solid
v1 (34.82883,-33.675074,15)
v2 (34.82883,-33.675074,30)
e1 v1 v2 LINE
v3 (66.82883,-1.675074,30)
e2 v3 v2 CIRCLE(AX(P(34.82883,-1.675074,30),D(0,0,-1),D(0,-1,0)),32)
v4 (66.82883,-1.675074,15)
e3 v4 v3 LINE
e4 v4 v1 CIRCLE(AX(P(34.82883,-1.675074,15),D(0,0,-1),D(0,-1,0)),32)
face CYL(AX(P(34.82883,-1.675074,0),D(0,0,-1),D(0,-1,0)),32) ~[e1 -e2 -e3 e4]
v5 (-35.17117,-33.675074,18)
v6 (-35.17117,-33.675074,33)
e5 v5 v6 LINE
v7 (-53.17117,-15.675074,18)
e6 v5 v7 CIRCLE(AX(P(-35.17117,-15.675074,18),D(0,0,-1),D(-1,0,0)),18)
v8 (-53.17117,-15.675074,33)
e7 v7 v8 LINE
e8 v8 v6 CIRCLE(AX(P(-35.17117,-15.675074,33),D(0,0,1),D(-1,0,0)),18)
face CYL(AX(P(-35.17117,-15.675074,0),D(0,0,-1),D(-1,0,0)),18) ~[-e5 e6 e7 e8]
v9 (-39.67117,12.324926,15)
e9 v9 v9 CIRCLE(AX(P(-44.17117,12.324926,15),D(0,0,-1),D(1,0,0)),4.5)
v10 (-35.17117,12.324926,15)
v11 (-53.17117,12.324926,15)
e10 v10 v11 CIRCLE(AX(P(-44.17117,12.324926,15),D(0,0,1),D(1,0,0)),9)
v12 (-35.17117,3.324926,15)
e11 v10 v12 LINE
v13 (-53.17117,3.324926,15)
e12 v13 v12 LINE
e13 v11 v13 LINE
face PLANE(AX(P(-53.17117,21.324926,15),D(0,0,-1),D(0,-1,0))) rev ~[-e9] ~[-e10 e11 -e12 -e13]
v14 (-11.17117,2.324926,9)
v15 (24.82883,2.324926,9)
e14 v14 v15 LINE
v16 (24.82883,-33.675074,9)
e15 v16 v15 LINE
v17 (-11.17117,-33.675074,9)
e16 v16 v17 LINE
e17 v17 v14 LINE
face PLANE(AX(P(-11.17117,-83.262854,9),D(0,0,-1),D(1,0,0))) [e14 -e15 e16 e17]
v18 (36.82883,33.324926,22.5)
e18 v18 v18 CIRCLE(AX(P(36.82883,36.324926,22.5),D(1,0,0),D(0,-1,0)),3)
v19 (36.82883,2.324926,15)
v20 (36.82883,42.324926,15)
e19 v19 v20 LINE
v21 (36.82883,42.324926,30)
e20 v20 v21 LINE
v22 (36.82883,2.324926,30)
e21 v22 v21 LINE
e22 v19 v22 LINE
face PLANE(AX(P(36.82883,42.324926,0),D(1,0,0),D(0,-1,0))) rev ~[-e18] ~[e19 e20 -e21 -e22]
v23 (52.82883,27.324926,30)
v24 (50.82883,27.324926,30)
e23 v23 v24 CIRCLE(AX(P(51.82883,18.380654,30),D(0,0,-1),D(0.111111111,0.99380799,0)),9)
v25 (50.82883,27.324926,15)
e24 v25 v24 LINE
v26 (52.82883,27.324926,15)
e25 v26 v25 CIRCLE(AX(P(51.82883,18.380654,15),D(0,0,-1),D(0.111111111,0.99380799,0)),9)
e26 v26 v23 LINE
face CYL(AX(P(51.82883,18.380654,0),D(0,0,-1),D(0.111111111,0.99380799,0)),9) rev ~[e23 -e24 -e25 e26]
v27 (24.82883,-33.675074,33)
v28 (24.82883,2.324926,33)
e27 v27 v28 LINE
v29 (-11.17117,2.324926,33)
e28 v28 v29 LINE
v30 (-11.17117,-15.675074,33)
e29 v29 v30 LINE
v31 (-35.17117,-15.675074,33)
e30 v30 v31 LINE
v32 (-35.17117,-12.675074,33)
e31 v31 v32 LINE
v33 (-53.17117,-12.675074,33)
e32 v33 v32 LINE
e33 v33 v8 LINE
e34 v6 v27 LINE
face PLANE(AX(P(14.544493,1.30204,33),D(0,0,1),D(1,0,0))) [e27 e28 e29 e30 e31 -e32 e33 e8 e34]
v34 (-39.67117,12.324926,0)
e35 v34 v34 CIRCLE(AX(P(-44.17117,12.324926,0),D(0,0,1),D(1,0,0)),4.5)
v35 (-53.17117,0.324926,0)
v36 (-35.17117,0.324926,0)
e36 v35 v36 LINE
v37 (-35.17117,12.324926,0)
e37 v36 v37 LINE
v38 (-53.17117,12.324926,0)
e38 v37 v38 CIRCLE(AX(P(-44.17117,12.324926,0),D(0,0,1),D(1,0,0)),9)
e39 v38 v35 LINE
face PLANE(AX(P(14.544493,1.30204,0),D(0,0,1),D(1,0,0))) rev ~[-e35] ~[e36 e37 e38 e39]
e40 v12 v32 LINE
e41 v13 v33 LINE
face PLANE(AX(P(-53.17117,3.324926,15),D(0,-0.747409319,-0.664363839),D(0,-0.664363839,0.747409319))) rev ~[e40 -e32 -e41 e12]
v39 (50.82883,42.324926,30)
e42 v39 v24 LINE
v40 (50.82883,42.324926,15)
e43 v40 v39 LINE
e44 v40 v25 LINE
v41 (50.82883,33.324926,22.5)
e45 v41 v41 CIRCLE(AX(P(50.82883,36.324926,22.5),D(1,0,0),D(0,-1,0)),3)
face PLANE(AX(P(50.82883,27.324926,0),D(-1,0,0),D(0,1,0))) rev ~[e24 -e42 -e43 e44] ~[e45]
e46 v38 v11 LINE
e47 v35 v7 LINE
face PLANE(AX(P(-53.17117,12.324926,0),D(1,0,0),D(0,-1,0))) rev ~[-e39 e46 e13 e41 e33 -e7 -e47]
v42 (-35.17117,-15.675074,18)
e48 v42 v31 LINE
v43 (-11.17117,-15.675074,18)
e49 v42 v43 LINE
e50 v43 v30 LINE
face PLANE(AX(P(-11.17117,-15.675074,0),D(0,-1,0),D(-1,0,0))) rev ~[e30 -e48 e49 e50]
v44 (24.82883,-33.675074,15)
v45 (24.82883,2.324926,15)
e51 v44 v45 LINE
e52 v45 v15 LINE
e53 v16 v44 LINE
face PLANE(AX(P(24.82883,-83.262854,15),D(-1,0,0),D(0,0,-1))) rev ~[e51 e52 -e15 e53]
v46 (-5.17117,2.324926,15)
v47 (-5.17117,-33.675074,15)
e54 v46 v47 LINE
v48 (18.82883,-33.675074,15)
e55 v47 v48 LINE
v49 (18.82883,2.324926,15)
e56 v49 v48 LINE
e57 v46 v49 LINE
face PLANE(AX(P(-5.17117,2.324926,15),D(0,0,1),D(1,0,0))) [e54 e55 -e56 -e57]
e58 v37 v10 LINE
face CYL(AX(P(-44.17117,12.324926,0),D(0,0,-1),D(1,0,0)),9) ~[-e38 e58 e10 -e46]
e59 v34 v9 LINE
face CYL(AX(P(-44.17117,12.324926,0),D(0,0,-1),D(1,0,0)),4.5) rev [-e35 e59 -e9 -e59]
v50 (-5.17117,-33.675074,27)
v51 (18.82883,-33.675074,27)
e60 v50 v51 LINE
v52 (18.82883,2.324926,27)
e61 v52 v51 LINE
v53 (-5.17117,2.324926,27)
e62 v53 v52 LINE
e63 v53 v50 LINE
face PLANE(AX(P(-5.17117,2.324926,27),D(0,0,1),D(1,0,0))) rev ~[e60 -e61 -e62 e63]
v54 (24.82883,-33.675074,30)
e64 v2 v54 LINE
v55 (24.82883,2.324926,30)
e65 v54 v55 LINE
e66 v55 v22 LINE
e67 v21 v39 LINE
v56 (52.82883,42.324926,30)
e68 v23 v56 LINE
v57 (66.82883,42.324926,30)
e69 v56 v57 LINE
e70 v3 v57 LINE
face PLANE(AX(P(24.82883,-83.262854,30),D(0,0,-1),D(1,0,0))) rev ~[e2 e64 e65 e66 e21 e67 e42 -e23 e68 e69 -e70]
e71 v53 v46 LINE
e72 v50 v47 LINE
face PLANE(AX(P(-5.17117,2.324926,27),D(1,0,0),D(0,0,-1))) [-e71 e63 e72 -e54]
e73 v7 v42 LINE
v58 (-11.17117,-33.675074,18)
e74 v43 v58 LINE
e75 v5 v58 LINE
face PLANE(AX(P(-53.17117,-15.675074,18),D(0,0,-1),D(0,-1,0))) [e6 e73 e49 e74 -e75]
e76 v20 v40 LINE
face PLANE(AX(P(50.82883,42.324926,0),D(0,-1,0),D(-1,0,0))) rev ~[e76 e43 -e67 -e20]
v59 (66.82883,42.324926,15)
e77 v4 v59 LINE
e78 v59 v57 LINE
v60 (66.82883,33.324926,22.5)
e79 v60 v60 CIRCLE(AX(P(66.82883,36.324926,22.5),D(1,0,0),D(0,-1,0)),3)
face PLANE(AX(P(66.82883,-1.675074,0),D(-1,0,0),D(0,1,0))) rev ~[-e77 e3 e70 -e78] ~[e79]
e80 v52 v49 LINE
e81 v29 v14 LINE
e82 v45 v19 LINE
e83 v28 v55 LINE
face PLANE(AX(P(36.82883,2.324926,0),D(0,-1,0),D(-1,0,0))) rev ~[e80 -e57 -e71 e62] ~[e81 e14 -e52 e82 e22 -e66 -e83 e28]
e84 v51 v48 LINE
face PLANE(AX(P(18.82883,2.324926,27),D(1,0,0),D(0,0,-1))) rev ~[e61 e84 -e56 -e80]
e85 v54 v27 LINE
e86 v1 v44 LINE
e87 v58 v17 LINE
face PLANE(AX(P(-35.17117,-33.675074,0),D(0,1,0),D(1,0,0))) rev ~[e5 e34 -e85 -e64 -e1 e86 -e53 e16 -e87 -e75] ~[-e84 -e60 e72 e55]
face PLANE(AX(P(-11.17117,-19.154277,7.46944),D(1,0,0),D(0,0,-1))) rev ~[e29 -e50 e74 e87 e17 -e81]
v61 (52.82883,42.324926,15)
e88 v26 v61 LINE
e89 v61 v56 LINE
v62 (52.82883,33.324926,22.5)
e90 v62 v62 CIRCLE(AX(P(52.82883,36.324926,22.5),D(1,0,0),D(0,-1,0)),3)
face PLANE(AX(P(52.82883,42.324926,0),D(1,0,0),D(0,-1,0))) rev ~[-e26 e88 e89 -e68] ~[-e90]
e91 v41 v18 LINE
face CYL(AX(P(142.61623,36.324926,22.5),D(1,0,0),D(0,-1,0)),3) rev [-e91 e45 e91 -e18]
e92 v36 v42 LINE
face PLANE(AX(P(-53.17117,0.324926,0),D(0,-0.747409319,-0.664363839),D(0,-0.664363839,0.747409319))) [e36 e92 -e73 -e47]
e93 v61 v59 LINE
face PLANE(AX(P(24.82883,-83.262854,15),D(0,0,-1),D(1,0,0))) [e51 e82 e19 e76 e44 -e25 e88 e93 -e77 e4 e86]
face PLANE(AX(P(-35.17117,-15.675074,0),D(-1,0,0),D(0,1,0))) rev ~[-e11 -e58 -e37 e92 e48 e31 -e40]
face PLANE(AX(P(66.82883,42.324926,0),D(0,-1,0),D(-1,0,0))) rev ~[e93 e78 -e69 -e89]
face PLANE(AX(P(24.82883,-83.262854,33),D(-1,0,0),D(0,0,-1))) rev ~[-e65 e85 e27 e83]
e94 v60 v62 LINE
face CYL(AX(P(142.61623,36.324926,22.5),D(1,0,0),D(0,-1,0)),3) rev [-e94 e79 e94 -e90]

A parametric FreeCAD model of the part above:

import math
import FreeCAD as App
import Part
import Sketcher
Q = App.Units.Quantity

doc = App.newDocument("Part")
body = doc.addObject("PartDesign::Body", "Body")

sketch1 = doc.addObject("Sketcher::SketchObject", "Sketch")
body.addObject(sketch1)
sketch1.AttachmentSupport = (doc.XY_Plane, [""])
sketch1.MapMode = "FlatFace"
sketch1.addGeometry([
    Part.LineSegment(App.Vector(52.8, 42.3, 0), App.Vector(52.8, 27.3, 0)),
    Part.ArcOfCircle(Part.Circle(App.Vector(51.8, 18.4, 0), App.Vector(0, 0, 1), 9), math.radians(96), math.radians(444)),
    Part.LineSegment(App.Vector(50.8, 27.3, 0), App.Vector(50.8, 42.3, 0)),
    Part.LineSegment(App.Vector(50.8, 42.3, 0), App.Vector(36.8, 42.3, 0)),
    Part.LineSegment(App.Vector(36.8, 42.3, 0), App.Vector(36.8, 2.3, 0)),
    Part.LineSegment(App.Vector(36.8, 2.3, 0), App.Vector(-11.2, 2.3, 0)),
    Part.LineSegment(App.Vector(-11.2, 2.3, 0), App.Vector(-11.2, -15.7, 0)),
    Part.LineSegment(App.Vector(-11.2, -15.7, 0), App.Vector(-35.2, -15.7, 0)),
    Part.LineSegment(App.Vector(-35.2, -15.7, 0), App.Vector(-35.2, 12.3, 0)),
    Part.ArcOfCircle(Part.Circle(App.Vector(-44.2, 12.3, 0), App.Vector(0, 0, 1), 9), math.radians(0), math.radians(180)),
    Part.LineSegment(App.Vector(-53.2, 12.3, 0), App.Vector(-53.2, -15.7, 0)),
    Part.ArcOfCircle(Part.Circle(App.Vector(-35.2, -15.7, 0), App.Vector(0, 0, 1), 18), math.radians(-180), math.radians(-90)),
    Part.LineSegment(App.Vector(-35.2, -33.7, 0), App.Vector(34.8, -33.7, 0)),
    Part.ArcOfCircle(Part.Circle(App.Vector(34.8, -1.7, 0), App.Vector(0, 0, 1), 32), math.radians(-90), math.radians(0)),
    Part.LineSegment(App.Vector(66.8, -1.7, 0), App.Vector(66.8, 42.3, 0)),
    Part.LineSegment(App.Vector(66.8, 42.3, 0), App.Vector(52.8, 42.3, 0)),
    Part.Circle(App.Vector(-44.2, 12.3, 0), App.Vector(0, 0, 1), 4.5),
], False)
sketch1.addConstraint([
    Sketcher.Constraint("Coincident", 0, 2, 1, 2),
    Sketcher.Constraint("Coincident", 1, 1, 2, 1),
    Sketcher.Constraint("Coincident", 2, 2, 3, 1),
    Sketcher.Constraint("Coincident", 3, 2, 4, 1),
    Sketcher.Constraint("Coincident", 4, 2, 5, 1),
    Sketcher.Constraint("Coincident", 5, 2, 6, 1),
    Sketcher.Constraint("Coincident", 6, 2, 7, 1),
    Sketcher.Constraint("Coincident", 7, 2, 8, 1),
    Sketcher.Constraint("Tangent", 8, 2, 9, 1),
    Sketcher.Constraint("Tangent", 9, 2, 10, 1),
    Sketcher.Constraint("Tangent", 10, 2, 11, 1),
    Sketcher.Constraint("Tangent", 11, 2, 12, 1),
    Sketcher.Constraint("Tangent", 12, 2, 13, 1),
    Sketcher.Constraint("Tangent", 13, 2, 14, 1),
    Sketcher.Constraint("Coincident", 14, 2, 15, 1),
    Sketcher.Constraint("Coincident", 15, 2, 0, 1),
    Sketcher.Constraint("Vertical", 0),
    Sketcher.Constraint("Vertical", 2),
    Sketcher.Constraint("Horizontal", 3),
    Sketcher.Constraint("Vertical", 4),
    Sketcher.Constraint("Horizontal", 5),
    Sketcher.Constraint("Vertical", 6),
    Sketcher.Constraint("Horizontal", 7),
    Sketcher.Constraint("Vertical", 8),
    Sketcher.Constraint("Vertical", 10),
    Sketcher.Constraint("Horizontal", 12),
    Sketcher.Constraint("Vertical", 14),
    Sketcher.Constraint("Horizontal", 15),
    Sketcher.Constraint("Coincident", 16, 3, 9, 3),
    Sketcher.Constraint("Coincident", 7, 2, 11, 3),
    Sketcher.Constraint("Equal", 1, 9),
    Sketcher.Constraint("Horizontal", 0, 2, 1, 1),
    Sketcher.Constraint("Horizontal", 3, 2, 14, 2),
    Sketcher.Constraint("Equal", 3, 15),
    Sketcher.Constraint("Diameter", 16, Q("9 mm")),
    Sketcher.Constraint("Radius", 1, Q("9 mm")),
    Sketcher.Constraint("Radius", 13, Q("32 mm")),
    Sketcher.Constraint("DistanceX", 3, 2, 3, 1, Q("14 mm")),
    Sketcher.Constraint("DistanceX", 5, 2, 5, 1, Q("48 mm")),
    Sketcher.Constraint("DistanceX", 7, 2, 7, 1, Q("24 mm")),
    Sketcher.Constraint("DistanceX", 12, 1, 12, 2, Q("70 mm")),
    Sketcher.Constraint("DistanceY", 0, 2, 0, 1, Q("15 mm")),
    Sketcher.Constraint("DistanceY", 4, 2, 4, 1, Q("40 mm")),
    Sketcher.Constraint("DistanceY", 6, 2, 6, 1, Q("18 mm")),
    Sketcher.Constraint("DistanceY", 8, 1, 8, 2, Q("28 mm")),
    Sketcher.Constraint("DistanceX", -1, 1, 1, 3, Q("51.82883 mm")),
    Sketcher.Constraint("DistanceY", -1, 1, 1, 3, Q("18.380654 mm")),
])
pad1 = doc.addObject("PartDesign::Pad", "Pad")
body.addObject(pad1)
pad1.Profile = sketch1
pad1.Length = 33

sketch2 = doc.addObject("Sketcher::SketchObject", "Sketch001")
body.addObject(sketch2)
sketch2.AttachmentSupport = (doc.YZ_Plane, [""])
sketch2.MapMode = "FlatFace"
sketch2.AttachmentOffset = App.Placement(App.Vector(0, 0, -53.17117), App.Rotation())
sketch2.addGeometry([
    Part.LineSegment(App.Vector(-16, 18, 0), App.Vector(0, 0, 0)),
    Part.LineSegment(App.Vector(0, 0, 0), App.Vector(-34, 0, 0)),
    Part.LineSegment(App.Vector(-34, 0, 0), App.Vector(-34, 18, 0)),
    Part.LineSegment(App.Vector(-34, 18, 0), App.Vector(-16, 18, 0)),
    Part.LineSegment(App.Vector(21, 15, 0), App.Vector(3, 15, 0)),
    Part.LineSegment(App.Vector(3, 15, 0), App.Vector(-13, 33, 0)),
    Part.LineSegment(App.Vector(-13, 33, 0), App.Vector(21, 33, 0)),
    Part.LineSegment(App.Vector(21, 33, 0), App.Vector(21, 15, 0)),
], False)
sketch2.addConstraint([
    Sketcher.Constraint("Coincident", 0, 2, 1, 1),
    Sketcher.Constraint("Coincident", 1, 2, 2, 1),
    Sketcher.Constraint("Coincident", 2, 2, 3, 1),
    Sketcher.Constraint("Coincident", 3, 2, 0, 1),
    Sketcher.Constraint("Coincident", 4, 2, 5, 1),
    Sketcher.Constraint("Coincident", 5, 2, 6, 1),
    Sketcher.Constraint("Coincident", 6, 2, 7, 1),
    Sketcher.Constraint("Coincident", 7, 2, 4, 1),
    Sketcher.Constraint("Horizontal", 1),
    Sketcher.Constraint("Vertical", 2),
    Sketcher.Constraint("Horizontal", 3),
    Sketcher.Constraint("Horizontal", 4),
    Sketcher.Constraint("Horizontal", 6),
    Sketcher.Constraint("Vertical", 7),
    Sketcher.Constraint("PointOnObject", 0, 2, -1),
    Sketcher.Constraint("Parallel", 0, 5),
    Sketcher.Constraint("Equal", 3, 4),
    Sketcher.Constraint("Equal", 1, 6),
    Sketcher.Constraint("Equal", 4, 2),
    Sketcher.Constraint("DistanceX", 1, 2, 1, 1, Q("34 mm")),
    Sketcher.Constraint("DistanceX", 3, 1, 3, 2, Q("18 mm")),
    Sketcher.Constraint("DistanceY", -1, 1, 4, 2, Q("15 mm")),
    Sketcher.Constraint("DistanceX", 0, 2, 4, 2, Q("3 mm")),
    Sketcher.Constraint("DistanceX", -1, 1, 0, 2, Q("0.324926 mm")),
])
pocket1 = doc.addObject("PartDesign::Pocket", "Pocket")
body.addObject(pocket1)
pocket1.Profile = sketch2
pocket1.Length = 42
pocket1.Reversed = True

sketch3 = doc.addObject("Sketcher::SketchObject", "Sketch002")
body.addObject(sketch3)
sketch3.AttachmentSupport = (doc.XZ_Plane, [""])
sketch3.MapMode = "FlatFace"
sketch3.AttachmentOffset = App.Placement(App.Vector(0, 0, -2.324926), App.Rotation())
sketch3.addGeometry([
    Part.LineSegment(App.Vector(-5, 15, 0), App.Vector(-5, 27, 0)),
    Part.LineSegment(App.Vector(-5, 27, 0), App.Vector(19, 27, 0)),
    Part.LineSegment(App.Vector(19, 27, 0), App.Vector(19, 15, 0)),
    Part.LineSegment(App.Vector(19, 15, 0), App.Vector(-5, 15, 0)),
], False)
sketch3.addConstraint([
    Sketcher.Constraint("Coincident", 0, 2, 1, 1),
    Sketcher.Constraint("Coincident", 1, 2, 2, 1),
    Sketcher.Constraint("Coincident", 2, 2, 3, 1),
    Sketcher.Constraint("Coincident", 3, 2, 0, 1),
    Sketcher.Constraint("Vertical", 0),
    Sketcher.Constraint("Horizontal", 1),
    Sketcher.Constraint("Vertical", 2),
    Sketcher.Constraint("Horizontal", 3),
    Sketcher.Constraint("DistanceX", 1, 1, 1, 2, Q("24 mm")),
    Sketcher.Constraint("DistanceY", 0, 1, 0, 2, Q("12 mm")),
    Sketcher.Constraint("DistanceY", -1, 1, 0, 2, Q("27 mm")),
    Sketcher.Constraint("DistanceX", 0, 2, -1, 1, Q("5.17117 mm")),
])
pocket2 = doc.addObject("PartDesign::Pocket", "Pocket001")
body.addObject(pocket2)
pocket2.Profile = sketch3
pocket2.Type = "ThroughAll"
pocket2.Reversed = True

sketch4 = doc.addObject("Sketcher::SketchObject", "Sketch003")
body.addObject(sketch4)
sketch4.AttachmentSupport = (doc.XZ_Plane, [""])
sketch4.MapMode = "FlatFace"
sketch4.AttachmentOffset = App.Placement(App.Vector(0, 0, -2.324926), App.Rotation())
sketch4.addGeometry([
    Part.LineSegment(App.Vector(-11, 0, 0), App.Vector(-11, 9, 0)),
    Part.LineSegment(App.Vector(-11, 9, 0), App.Vector(67, 9, 0)),
    Part.LineSegment(App.Vector(67, 9, 0), App.Vector(67, 0, 0)),
    Part.LineSegment(App.Vector(67, 0, 0), App.Vector(-11, 0, 0)),
], False)
sketch4.addConstraint([
    Sketcher.Constraint("Coincident", 0, 2, 1, 1),
    Sketcher.Constraint("Coincident", 1, 2, 2, 1),
    Sketcher.Constraint("Coincident", 2, 2, 3, 1),
    Sketcher.Constraint("Coincident", 3, 2, 0, 1),
    Sketcher.Constraint("Vertical", 0),
    Sketcher.Constraint("Horizontal", 1),
    Sketcher.Constraint("Vertical", 2),
    Sketcher.Constraint("Horizontal", 3),
    Sketcher.Constraint("PointOnObject", 2, 2, -1),
    Sketcher.Constraint("DistanceX", 1, 1, 1, 2, Q("78 mm")),
    Sketcher.Constraint("DistanceY", 0, 1, 0, 2, Q("9 mm")),
    Sketcher.Constraint("DistanceX", 0, 2, -1, 1, Q("11.17117 mm")),
])
pocket3 = doc.addObject("PartDesign::Pocket", "Pocket002")
body.addObject(pocket3)
pocket3.Profile = sketch4
pocket3.Type = "ThroughAll"
pocket3.Midplane = True

sketch5 = doc.addObject("Sketcher::SketchObject", "Sketch004")
body.addObject(sketch5)
sketch5.AttachmentSupport = (doc.XZ_Plane, [""])
sketch5.MapMode = "FlatFace"
sketch5.AttachmentOffset = App.Placement(App.Vector(0, 0, -2.324926), App.Rotation())
sketch5.addGeometry([
    Part.LineSegment(App.Vector(24.8, 9, 0), App.Vector(24.8, 15, 0)),
    Part.LineSegment(App.Vector(24.8, 15, 0), App.Vector(66.8, 15, 0)),
    Part.LineSegment(App.Vector(66.8, 15, 0), App.Vector(66.8, 9, 0)),
    Part.LineSegment(App.Vector(66.8, 9, 0), App.Vector(24.8, 9, 0)),
    Part.LineSegment(App.Vector(24.8, 30, 0), App.Vector(24.8, 33, 0)),
    Part.LineSegment(App.Vector(24.8, 33, 0), App.Vector(66.8, 33, 0)),
    Part.LineSegment(App.Vector(66.8, 33, 0), App.Vector(66.8, 30, 0)),
    Part.LineSegment(App.Vector(66.8, 30, 0), App.Vector(24.8, 30, 0)),
], False)
sketch5.addConstraint([
    Sketcher.Constraint("Coincident", 0, 2, 1, 1),
    Sketcher.Constraint("Coincident", 1, 2, 2, 1),
    Sketcher.Constraint("Coincident", 2, 2, 3, 1),
    Sketcher.Constraint("Coincident", 3, 2, 0, 1),
    Sketcher.Constraint("Coincident", 4, 2, 5, 1),
    Sketcher.Constraint("Coincident", 5, 2, 6, 1),
    Sketcher.Constraint("Coincident", 6, 2, 7, 1),
    Sketcher.Constraint("Coincident", 7, 2, 4, 1),
    Sketcher.Constraint("Vertical", 0),
    Sketcher.Constraint("Horizontal", 1),
    Sketcher.Constraint("Vertical", 2),
    Sketcher.Constraint("Horizontal", 3),
    Sketcher.Constraint("Vertical", 4),
    Sketcher.Constraint("Horizontal", 5),
    Sketcher.Constraint("Vertical", 6),
    Sketcher.Constraint("Horizontal", 7),
    Sketcher.Constraint("Vertical", 3, 2, 4, 2),
    Sketcher.Constraint("Vertical", 2, 2, 5, 2),
    Sketcher.Constraint("DistanceX", 1, 1, 1, 2, Q("42 mm")),
    Sketcher.Constraint("DistanceY", 0, 1, 0, 2, Q("6 mm")),
    Sketcher.Constraint("DistanceY", 4, 1, 4, 2, Q("3 mm")),
    Sketcher.Constraint("DistanceY", -1, 1, 0, 2, Q("15 mm")),
    Sketcher.Constraint("DistanceY", -1, 1, 4, 2, Q("33 mm")),
    Sketcher.Constraint("DistanceX", -1, 1, 0, 2, Q("24.82883 mm")),
])
pocket4 = doc.addObject("PartDesign::Pocket", "Pocket003")
body.addObject(pocket4)
pocket4.Profile = sketch5
pocket4.Type = "ThroughAll"
pocket4.Midplane = True

sketch6 = doc.addObject("Sketcher::SketchObject", "Sketch005")
body.addObject(sketch6)
sketch6.AttachmentSupport = (doc.YZ_Plane, [""])
sketch6.MapMode = "FlatFace"
sketch6.AttachmentOffset = App.Placement(App.Vector(0, 0, 36.82883), App.Rotation())
sketch6.addGeometry(Part.Circle(App.Vector(36.3, 22.5, 0), App.Vector(0, 0, 1), 3), False)
sketch6.addConstraint([
    Sketcher.Constraint("Diameter", 0, Q("6 mm")),
    Sketcher.Constraint("DistanceY", -1, 1, 0, 3, Q("22.5 mm")),
    Sketcher.Constraint("DistanceX", -1, 1, 0, 3, Q("36.324926 mm")),
])
pocket5 = doc.addObject("PartDesign::Pocket", "Pocket004")
body.addObject(pocket5)
pocket5.Profile = sketch6
pocket5.Type = "ThroughAll"
pocket5.Midplane = True

doc.recompute()
